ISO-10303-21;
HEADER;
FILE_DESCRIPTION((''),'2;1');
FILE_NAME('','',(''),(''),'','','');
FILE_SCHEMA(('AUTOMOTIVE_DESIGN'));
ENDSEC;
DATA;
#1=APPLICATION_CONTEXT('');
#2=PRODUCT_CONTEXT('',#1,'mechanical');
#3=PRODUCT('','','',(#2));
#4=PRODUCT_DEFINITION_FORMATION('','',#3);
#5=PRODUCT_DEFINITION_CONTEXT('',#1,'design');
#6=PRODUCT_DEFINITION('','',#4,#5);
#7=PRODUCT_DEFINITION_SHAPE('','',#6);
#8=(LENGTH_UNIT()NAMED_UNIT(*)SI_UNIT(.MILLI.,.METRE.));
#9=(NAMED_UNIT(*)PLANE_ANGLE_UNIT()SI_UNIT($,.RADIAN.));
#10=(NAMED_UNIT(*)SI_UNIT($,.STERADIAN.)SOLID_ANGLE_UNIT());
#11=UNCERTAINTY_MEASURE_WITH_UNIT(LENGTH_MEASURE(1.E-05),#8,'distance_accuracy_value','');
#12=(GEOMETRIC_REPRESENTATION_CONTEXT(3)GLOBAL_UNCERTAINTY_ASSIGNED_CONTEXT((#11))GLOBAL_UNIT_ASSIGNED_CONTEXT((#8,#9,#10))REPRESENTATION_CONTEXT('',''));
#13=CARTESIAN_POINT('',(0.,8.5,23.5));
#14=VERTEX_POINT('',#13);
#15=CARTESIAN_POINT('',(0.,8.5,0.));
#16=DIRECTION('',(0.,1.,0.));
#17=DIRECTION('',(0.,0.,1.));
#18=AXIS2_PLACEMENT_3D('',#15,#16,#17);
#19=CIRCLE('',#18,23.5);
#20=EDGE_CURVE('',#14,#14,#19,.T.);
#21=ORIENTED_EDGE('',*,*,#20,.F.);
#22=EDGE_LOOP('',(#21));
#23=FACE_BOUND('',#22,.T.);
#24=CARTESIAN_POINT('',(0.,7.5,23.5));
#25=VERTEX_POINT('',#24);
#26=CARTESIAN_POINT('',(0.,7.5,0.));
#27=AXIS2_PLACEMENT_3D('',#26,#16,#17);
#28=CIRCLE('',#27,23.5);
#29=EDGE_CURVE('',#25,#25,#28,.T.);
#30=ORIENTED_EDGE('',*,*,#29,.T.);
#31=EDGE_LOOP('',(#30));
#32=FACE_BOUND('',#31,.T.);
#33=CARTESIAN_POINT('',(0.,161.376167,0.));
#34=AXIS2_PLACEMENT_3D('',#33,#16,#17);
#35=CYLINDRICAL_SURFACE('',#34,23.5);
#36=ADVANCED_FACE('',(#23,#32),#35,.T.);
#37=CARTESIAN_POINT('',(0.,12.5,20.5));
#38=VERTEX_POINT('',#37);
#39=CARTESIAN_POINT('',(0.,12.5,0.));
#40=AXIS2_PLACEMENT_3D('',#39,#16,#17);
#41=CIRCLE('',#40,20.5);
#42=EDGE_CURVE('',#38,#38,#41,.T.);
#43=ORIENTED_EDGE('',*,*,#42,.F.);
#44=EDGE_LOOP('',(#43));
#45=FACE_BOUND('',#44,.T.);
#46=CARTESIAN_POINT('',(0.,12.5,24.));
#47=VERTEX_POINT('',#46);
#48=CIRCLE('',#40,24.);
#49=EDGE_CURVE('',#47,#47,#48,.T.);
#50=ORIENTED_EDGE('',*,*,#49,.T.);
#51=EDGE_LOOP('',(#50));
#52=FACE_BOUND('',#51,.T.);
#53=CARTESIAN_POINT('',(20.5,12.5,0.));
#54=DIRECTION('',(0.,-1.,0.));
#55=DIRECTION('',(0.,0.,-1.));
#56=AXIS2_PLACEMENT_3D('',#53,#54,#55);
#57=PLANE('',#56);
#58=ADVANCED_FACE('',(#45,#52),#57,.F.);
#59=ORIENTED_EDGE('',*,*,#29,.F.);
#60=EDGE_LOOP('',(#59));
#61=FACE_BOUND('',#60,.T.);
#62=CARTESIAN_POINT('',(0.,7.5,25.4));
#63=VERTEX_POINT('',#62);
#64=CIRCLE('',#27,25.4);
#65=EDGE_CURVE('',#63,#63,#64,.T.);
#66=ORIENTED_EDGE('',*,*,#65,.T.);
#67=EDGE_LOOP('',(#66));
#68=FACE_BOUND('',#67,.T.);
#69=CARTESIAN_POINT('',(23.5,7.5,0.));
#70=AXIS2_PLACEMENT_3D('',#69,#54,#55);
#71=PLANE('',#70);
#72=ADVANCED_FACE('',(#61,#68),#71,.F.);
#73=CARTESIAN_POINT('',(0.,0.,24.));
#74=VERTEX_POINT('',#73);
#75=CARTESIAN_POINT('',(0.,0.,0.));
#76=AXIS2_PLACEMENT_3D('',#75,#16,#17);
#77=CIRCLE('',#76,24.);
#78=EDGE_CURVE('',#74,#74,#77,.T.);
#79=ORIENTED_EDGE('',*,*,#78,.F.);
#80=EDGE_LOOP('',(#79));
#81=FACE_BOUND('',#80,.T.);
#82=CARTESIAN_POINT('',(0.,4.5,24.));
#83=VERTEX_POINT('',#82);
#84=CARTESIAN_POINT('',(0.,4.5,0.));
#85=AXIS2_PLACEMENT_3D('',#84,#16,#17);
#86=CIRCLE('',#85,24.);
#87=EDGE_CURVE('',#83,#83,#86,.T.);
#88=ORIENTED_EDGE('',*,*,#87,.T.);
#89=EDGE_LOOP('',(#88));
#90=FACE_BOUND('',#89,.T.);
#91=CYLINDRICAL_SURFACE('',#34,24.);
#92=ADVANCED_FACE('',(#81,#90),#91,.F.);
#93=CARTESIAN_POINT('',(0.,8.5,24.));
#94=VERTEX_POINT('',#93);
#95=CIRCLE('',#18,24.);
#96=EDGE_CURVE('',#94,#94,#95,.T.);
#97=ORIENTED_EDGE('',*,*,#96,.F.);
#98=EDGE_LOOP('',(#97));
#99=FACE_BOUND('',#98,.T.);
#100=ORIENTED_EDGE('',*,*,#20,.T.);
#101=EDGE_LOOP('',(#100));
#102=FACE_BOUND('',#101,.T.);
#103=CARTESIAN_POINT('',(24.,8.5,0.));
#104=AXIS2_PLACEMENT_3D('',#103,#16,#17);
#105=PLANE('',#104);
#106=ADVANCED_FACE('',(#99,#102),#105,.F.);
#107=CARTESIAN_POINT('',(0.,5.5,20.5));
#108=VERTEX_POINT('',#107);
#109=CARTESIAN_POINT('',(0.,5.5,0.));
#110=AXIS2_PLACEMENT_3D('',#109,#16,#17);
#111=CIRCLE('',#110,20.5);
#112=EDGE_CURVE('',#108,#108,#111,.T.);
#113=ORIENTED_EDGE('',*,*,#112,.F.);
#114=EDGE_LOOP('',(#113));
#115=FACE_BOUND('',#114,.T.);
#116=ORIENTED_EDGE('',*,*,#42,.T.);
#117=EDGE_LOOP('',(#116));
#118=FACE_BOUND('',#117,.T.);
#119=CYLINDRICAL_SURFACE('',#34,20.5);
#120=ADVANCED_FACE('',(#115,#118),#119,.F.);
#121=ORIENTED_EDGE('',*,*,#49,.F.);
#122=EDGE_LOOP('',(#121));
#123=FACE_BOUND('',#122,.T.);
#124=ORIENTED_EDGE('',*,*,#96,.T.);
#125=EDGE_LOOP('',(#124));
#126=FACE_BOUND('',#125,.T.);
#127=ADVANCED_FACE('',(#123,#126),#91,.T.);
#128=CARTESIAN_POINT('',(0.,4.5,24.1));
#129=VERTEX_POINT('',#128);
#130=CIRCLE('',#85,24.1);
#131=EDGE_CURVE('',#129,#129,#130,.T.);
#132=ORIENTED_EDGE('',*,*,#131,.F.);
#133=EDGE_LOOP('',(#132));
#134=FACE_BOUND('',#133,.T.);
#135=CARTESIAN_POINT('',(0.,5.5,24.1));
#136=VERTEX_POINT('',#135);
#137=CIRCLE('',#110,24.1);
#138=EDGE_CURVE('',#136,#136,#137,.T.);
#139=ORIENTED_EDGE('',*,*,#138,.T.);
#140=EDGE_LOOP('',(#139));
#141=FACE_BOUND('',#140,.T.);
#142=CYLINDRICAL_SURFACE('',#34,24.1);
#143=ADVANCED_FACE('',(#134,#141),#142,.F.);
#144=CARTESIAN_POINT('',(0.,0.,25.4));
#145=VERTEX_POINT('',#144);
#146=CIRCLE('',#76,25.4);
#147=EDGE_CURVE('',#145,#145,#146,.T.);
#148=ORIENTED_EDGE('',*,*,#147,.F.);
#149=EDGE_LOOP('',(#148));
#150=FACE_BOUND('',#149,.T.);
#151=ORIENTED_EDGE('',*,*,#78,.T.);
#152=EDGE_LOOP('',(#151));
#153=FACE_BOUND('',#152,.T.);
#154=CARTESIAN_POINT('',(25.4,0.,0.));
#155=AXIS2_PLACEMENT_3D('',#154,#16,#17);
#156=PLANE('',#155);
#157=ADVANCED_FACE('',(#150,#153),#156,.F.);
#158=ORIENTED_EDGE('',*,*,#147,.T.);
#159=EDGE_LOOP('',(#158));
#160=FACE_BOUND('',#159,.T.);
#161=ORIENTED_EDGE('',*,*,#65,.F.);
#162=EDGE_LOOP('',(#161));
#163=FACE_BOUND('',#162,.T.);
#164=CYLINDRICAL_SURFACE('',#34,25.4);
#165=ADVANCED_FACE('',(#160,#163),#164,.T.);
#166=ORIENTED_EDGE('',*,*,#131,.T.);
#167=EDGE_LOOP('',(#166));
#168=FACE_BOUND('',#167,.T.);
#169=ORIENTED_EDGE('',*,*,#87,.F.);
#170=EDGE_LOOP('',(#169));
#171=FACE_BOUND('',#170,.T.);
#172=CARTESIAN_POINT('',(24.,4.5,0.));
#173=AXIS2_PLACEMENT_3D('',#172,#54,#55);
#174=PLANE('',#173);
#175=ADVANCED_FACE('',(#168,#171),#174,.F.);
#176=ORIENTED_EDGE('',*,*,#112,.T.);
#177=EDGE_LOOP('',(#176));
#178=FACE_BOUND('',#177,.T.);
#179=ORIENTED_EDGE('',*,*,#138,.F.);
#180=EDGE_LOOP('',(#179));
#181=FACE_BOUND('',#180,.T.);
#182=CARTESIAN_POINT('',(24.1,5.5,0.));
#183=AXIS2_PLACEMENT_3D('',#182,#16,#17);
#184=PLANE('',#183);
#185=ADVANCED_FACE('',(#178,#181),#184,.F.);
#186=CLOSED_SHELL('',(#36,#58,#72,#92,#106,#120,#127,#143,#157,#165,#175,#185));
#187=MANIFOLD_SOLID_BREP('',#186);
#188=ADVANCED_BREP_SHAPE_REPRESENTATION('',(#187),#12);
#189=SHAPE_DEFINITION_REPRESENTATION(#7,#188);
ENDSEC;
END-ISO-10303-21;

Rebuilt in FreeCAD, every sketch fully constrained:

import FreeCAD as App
import Part
import Sketcher
from FreeCAD import Vector


def add_polygon(sketch, points):
    """Adds a closed chain of lines whose ends are joined by coincident constraints."""
    first, n = sketch.GeometryCount, len(points)
    for a, b in zip(points, points[1:] + points[:1]):
        sketch.addGeometry(Part.LineSegment(App.Vector(*a, 0), App.Vector(*b, 0)), False)
    for i in range(n):
        sketch.addConstraint(Sketcher.Constraint("Coincident", first + i, 2, first + (i + 1) % n, 1))

doc = App.newDocument("Part")
body = doc.addObject("PartDesign::Body", "Body")

# Sketch on XY plane
sketch1 = body.newObject("Sketcher::SketchObject", "Sketch")
sketch1.AttachmentSupport = (doc.getObject("XY_Plane"), [""])
sketch1.MapMode = "FlatFace"
add_polygon(sketch1, [(24, 12.5), (20.5, 12.5), (20.5, 5.5), (24.1, 5.5), (24.1, 4.5), (24, 4.5), (24, 0), (25.4, 0), (25.4, 7.5), (23.5, 7.5), (23.5, 8.5), (24, 8.5)])  # lines 0-11
sketch1.addConstraint(Sketcher.Constraint("Horizontal", 0))
sketch1.addConstraint(Sketcher.Constraint("Vertical", 1))
sketch1.addConstraint(Sketcher.Constraint("Horizontal", 2))
sketch1.addConstraint(Sketcher.Constraint("Vertical", 3))
sketch1.addConstraint(Sketcher.Constraint("Horizontal", 4))
sketch1.addConstraint(Sketcher.Constraint("Vertical", 5))
sketch1.addConstraint(Sketcher.Constraint("Horizontal", 6))
sketch1.addConstraint(Sketcher.Constraint("Vertical", 7))
sketch1.addConstraint(Sketcher.Constraint("Horizontal", 8))
sketch1.addConstraint(Sketcher.Constraint("Vertical", 9))
sketch1.addConstraint(Sketcher.Constraint("Horizontal", 10))
sketch1.addConstraint(Sketcher.Constraint("Vertical", 11))
sketch1.addConstraint(Sketcher.Constraint("PointOnObject", 5, 2, -1))
sketch1.addConstraint(Sketcher.Constraint("Vertical", 5, 2, 10, 2))
sketch1.addConstraint(Sketcher.Constraint("Equal", 3, 9))
sketch1.addConstraint(Sketcher.Constraint("DistanceY", 1, 2, 1, 1, 7.0))
sketch1.addConstraint(Sketcher.Constraint("DistanceY", 3, 2, 3, 1, 1.0))
sketch1.addConstraint(Sketcher.Constraint("DistanceY", 11, 1, 11, 2, 4.0))
sketch1.addConstraint(Sketcher.Constraint("DistanceX", 0, 2, 0, 1, 3.5))
sketch1.addConstraint(Sketcher.Constraint("DistanceX", 2, 1, 2, 2, 3.6))
sketch1.addConstraint(Sketcher.Constraint("DistanceX", 6, 1, 6, 2, 1.4))
sketch1.addConstraint(Sketcher.Constraint("DistanceX", 8, 2, 8, 1, 1.9))
sketch1.addConstraint(Sketcher.Constraint("DistanceY", 5, 2, 5, 1, 4.5))
sketch1.addConstraint(Sketcher.Constraint("DistanceX", -1, 1, 4, 2, 24.0))
revolution = body.newObject("PartDesign::Revolution", "Revolution")
revolution.Profile = sketch1
revolution.ReferenceAxis = (sketch1, ["V_Axis"])
revolution.Angle = 360

doc.recompute()
